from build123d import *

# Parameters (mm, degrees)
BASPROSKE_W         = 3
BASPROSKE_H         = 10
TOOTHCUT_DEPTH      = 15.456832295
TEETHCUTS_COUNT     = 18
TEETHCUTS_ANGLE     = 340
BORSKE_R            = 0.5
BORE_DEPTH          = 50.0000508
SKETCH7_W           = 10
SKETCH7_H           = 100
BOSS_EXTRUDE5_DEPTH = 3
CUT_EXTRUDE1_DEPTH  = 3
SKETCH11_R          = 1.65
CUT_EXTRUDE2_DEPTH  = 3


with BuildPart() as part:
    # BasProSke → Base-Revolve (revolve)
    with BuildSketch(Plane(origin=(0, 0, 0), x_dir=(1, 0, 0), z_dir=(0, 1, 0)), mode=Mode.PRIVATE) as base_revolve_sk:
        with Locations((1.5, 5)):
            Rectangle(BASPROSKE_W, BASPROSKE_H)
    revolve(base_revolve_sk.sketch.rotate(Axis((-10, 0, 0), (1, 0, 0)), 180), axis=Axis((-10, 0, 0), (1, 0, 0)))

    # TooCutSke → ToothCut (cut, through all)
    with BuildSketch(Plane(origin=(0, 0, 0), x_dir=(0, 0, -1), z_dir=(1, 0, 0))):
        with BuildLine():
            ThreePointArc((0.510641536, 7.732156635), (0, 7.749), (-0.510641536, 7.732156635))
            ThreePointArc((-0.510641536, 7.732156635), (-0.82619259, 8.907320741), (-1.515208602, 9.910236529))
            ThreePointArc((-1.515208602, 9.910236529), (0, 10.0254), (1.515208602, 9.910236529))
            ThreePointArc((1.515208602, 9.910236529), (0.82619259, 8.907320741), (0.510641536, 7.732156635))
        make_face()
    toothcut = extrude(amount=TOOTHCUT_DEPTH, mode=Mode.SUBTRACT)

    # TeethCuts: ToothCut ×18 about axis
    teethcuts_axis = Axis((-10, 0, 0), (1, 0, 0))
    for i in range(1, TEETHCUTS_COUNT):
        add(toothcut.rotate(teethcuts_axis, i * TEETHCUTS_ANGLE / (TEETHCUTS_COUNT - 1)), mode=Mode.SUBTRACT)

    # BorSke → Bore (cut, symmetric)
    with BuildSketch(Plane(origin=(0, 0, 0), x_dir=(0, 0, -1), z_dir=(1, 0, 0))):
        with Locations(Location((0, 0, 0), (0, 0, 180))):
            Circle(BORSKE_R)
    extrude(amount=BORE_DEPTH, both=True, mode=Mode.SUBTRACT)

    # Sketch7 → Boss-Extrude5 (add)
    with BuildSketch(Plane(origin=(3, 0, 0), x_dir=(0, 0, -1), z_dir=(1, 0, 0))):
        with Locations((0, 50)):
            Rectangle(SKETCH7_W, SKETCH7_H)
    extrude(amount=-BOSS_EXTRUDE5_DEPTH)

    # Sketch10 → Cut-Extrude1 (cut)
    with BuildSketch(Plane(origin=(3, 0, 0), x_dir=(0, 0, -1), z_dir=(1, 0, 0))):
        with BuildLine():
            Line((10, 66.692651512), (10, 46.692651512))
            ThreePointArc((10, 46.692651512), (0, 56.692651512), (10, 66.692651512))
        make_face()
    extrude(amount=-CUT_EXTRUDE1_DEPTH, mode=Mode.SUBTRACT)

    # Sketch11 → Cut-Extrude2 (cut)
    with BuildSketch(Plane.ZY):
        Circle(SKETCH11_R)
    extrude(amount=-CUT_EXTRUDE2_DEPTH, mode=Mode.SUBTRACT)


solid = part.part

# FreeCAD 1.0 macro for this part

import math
import FreeCAD as App
import Part
import Sketcher
from FreeCAD import Vector


def add_polygon(sketch, points):
    """Adds a closed chain of lines whose ends are joined by coincident constraints."""
    first, n = sketch.GeometryCount, len(points)
    for a, b in zip(points, points[1:] + points[:1]):
        sketch.addGeometry(Part.LineSegment(App.Vector(*a, 0), App.Vector(*b, 0)), False)
    for i in range(n):
        sketch.addConstraint(Sketcher.Constraint("Coincident", first + i, 2, first + (i + 1) % n, 1))

doc = App.newDocument("Part")
params = doc.addObject("Spreadsheet::Sheet", "Params")
for row, (alias, value) in enumerate([
    ("sketch1_width", "3 mm"),
    ("sketch1_height", "10 mm"),
    ("revolution_angle", "360 deg"),
    ("sketch2_radius", "3.6 mm"),
    ("sketch3_diameter", "1 mm"),
    ("pocket2_length", "100.000102 mm"),
    ("sketch4_width", "100 mm"),
    ("sketch4_height", "10 mm"),
    ("pad1_length", "3 mm"),
    ("sketch5_radius", "10 mm"),
    ("pocket3_length", "3 mm"),
    ("sketch6_diameter", "3.3 mm"),
    ("pocket4_length", "3 mm"),
], start=1):
    params.set(f"A{row}", alias)
    params.set(f"B{row}", "=" + value)
    params.setAlias(f"B{row}", alias)

body = doc.addObject("PartDesign::Body", "Body")

# Sketch on XZ plane
sketch1 = body.newObject("Sketcher::SketchObject", "Sketch")
sketch1.AttachmentSupport = (doc.getObject("XZ_Plane"), [""])
sketch1.MapMode = "FlatFace"
add_polygon(sketch1, [(0, -10), (0, 0), (3, 0), (3, -10)])  # lines 0-3
sketch1.addConstraint(Sketcher.Constraint("Vertical", 0))
sketch1.addConstraint(Sketcher.Constraint("Horizontal", 1))
sketch1.addConstraint(Sketcher.Constraint("Vertical", 2))
sketch1.addConstraint(Sketcher.Constraint("Horizontal", 3))
sketch1.addConstraint(Sketcher.Constraint("Coincident", 0, 2, -1, 1))
sketch1.addConstraint(Sketcher.Constraint("DistanceX", 1, 1, 1, 2, 3.0))
sketch1.addConstraint(Sketcher.Constraint("DistanceY", 0, 1, 0, 2, 10.0))
sketch1.setExpression("Constraints[9]", "Params.sketch1_width")
sketch1.setExpression("Constraints[10]", "Params.sketch1_height")
revolution = body.newObject("PartDesign::Revolution", "Revolution")
revolution.Profile = sketch1
revolution.ReferenceAxis = (sketch1, ["H_Axis"])
revolution.setExpression("Angle", "Params.revolution_angle")

# Sketch on YZ plane
sketch2 = body.newObject("Sketcher::SketchObject", "Sketch001")
sketch2.AttachmentSupport = (doc.getObject("YZ_Plane"), [""])
sketch2.MapMode = "FlatFace"
sketch2.addGeometry(Part.ArcOfCircle(Part.Circle(Vector(0, 0, 0), Vector(0, 0, 1), 7.7), math.radians(-3.78), math.radians(3.78)), False)
sketch2.addGeometry(Part.ArcOfCircle(Part.Circle(Vector(7.4, -4.1, 0), Vector(0, 0, 1), 3.6), math.radians(46), math.radians(85)), False)
sketch2.addGeometry(Part.ArcOfCircle(Part.Circle(Vector(0, 0, 0), Vector(0, 0, 1), 10), math.radians(-8.69), math.radians(8.69)), False)
sketch2.addGeometry(Part.ArcOfCircle(Part.Circle(Vector(7.4, 4.1, 0), Vector(0, 0, 1), 3.6), math.radians(-85), math.radians(-46)), False)
sketch2.addConstraint(Sketcher.Constraint("Coincident", 0, 1, 1, 2))
sketch2.addConstraint(Sketcher.Constraint("Coincident", 1, 1, 2, 1))
sketch2.addConstraint(Sketcher.Constraint("Coincident", 2, 2, 3, 2))
sketch2.addConstraint(Sketcher.Constraint("Coincident", 3, 1, 0, 2))
sketch2.addConstraint(Sketcher.Constraint("Coincident", 0, 3, -1, 1))
sketch2.addConstraint(Sketcher.Constraint("Coincident", 2, 3, -1, 1))
sketch2.addConstraint(Sketcher.Constraint("Equal", 1, 3))
sketch2.addConstraint(Sketcher.Constraint("Symmetric", 1, 3, 3, 3, -1))
sketch2.addConstraint(Sketcher.Constraint("Radius", 1, 3.6))
sketch2.addConstraint(Sketcher.Constraint("Radius", 0, 7.749))
sketch2.addConstraint(Sketcher.Constraint("Radius", 2, 10.0254))
sketch2.addConstraint(Sketcher.Constraint("DistanceX", -1, 1, 1, 3, 7.399578))
sketch2.addConstraint(Sketcher.Constraint("DistanceY", 0, 1, -1, 1, 0.510642))
sketch2.setExpression("Constraints[8]", "Params.sketch2_radius")
pocket1 = body.newObject("PartDesign::Pocket", "Pocket")
pocket1.Profile = sketch2
pocket1.Type = "ThroughAll"
pocket1.Reversed = True
doc.recompute()

polarpattern = body.newObject("PartDesign::PolarPattern", "PolarPattern")
polarpattern.Originals = [pocket1]
polarpattern.Axis = (doc.getObject("X_Axis"), [""])
polarpattern.Angle = 360
polarpattern.Occurrences = 18
body.Tip = polarpattern

# Sketch on YZ plane
sketch3 = body.newObject("Sketcher::SketchObject", "Sketch002")
sketch3.AttachmentSupport = (doc.getObject("YZ_Plane"), [""])
sketch3.MapMode = "FlatFace"
sketch3.addGeometry(Part.Circle(Vector(0, 0, 0), Vector(0, 0, 1), 0.5), False)
sketch3.addConstraint(Sketcher.Constraint("Coincident", 0, 3, -1, 1))
sketch3.addConstraint(Sketcher.Constraint("Diameter", 0, 1.0))
sketch3.setExpression("Constraints[1]", "Params.sketch3_diameter")
pocket2 = body.newObject("PartDesign::Pocket", "Pocket001")
pocket2.Profile = sketch3
pocket2.setExpression("Length", "Params.pocket2_length")
pocket2.Midplane = True

# Sketch on YZ plane
sketch4 = body.newObject("Sketcher::SketchObject", "Sketch003")
sketch4.AttachmentSupport = (doc.getObject("YZ_Plane"), [""])
sketch4.MapMode = "FlatFace"
sketch4.AttachmentOffset = App.Placement(Vector(0, 0, 3), App.Rotation())
add_polygon(sketch4, [(100, 5), (0, 5), (0, -5), (100, -5)])  # lines 0-3
sketch4.addConstraint(Sketcher.Constraint("Horizontal", 0))
sketch4.addConstraint(Sketcher.Constraint("Vertical", 1))
sketch4.addConstraint(Sketcher.Constraint("Horizontal", 2))
sketch4.addConstraint(Sketcher.Constraint("Vertical", 3))
sketch4.addConstraint(Sketcher.Constraint("Symmetric", 0, 2, 1, 2, -1, 1))
sketch4.addConstraint(Sketcher.Constraint("DistanceX", 0, 2, 0, 1, 100.0))
sketch4.addConstraint(Sketcher.Constraint("DistanceY", 1, 2, 1, 1, 10.0))
sketch4.setExpression("Constraints[9]", "Params.sketch4_width")
sketch4.setExpression("Constraints[10]", "Params.sketch4_height")
pad1 = body.newObject("PartDesign::Pad", "Pad")
pad1.Profile = sketch4
pad1.setExpression("Length", "Params.pad1_length")
pad1.Reversed = True

# Sketch on YZ plane
sketch5 = body.newObject("Sketcher::SketchObject", "Sketch004")
sketch5.AttachmentSupport = (doc.getObject("YZ_Plane"), [""])
sketch5.MapMode = "FlatFace"
sketch5.AttachmentOffset = App.Placement(Vector(0, 0, 3), App.Rotation())
sketch5.addGeometry(Part.LineSegment(Vector(47, -10, 0), Vector(67, -10, 0)), False)
sketch5.addGeometry(Part.ArcOfCircle(Part.Circle(Vector(57, -10, 0), Vector(0, 0, 1), 10), math.radians(0), math.radians(180)), False)
sketch5.addConstraint(Sketcher.Constraint("Coincident", 0, 1, 1, 2))
sketch5.addConstraint(Sketcher.Constraint("Coincident", 1, 1, 0, 2))
sketch5.addConstraint(Sketcher.Constraint("Horizontal", 0))
sketch5.addConstraint(Sketcher.Constraint("Horizontal", 1, 3, 0, 1))
sketch5.addConstraint(Sketcher.Constraint("Radius", 1, 10.0))
sketch5.addConstraint(Sketcher.Constraint("DistanceY", 1, 3, -1, 1, 10.0))
sketch5.addConstraint(Sketcher.Constraint("DistanceX", -1, 1, 1, 3, 56.692652))
sketch5.setExpression("Constraints[4]", "Params.sketch5_radius")
pocket3 = body.newObject("PartDesign::Pocket", "Pocket002")
pocket3.Profile = sketch5
pocket3.setExpression("Length", "Params.pocket3_length")

# Sketch on YZ plane
sketch6 = body.newObject("Sketcher::SketchObject", "Sketch005")
sketch6.AttachmentSupport = (doc.getObject("YZ_Plane"), [""])
sketch6.MapMode = "FlatFace"
sketch6.addGeometry(Part.Circle(Vector(0, 0, 0), Vector(0, 0, 1), 1.6), False)
sketch6.addConstraint(Sketcher.Constraint("Coincident", 0, 3, -1, 1))
sketch6.addConstraint(Sketcher.Constraint("Diameter", 0, 3.3))
sketch6.setExpression("Constraints[1]", "Params.sketch6_diameter")
pocket4 = body.newObject("PartDesign::Pocket", "Pocket003")
pocket4.Profile = sketch6
pocket4.setExpression("Length", "Params.pocket4_length")
pocket4.Reversed = True

doc.recompute()
